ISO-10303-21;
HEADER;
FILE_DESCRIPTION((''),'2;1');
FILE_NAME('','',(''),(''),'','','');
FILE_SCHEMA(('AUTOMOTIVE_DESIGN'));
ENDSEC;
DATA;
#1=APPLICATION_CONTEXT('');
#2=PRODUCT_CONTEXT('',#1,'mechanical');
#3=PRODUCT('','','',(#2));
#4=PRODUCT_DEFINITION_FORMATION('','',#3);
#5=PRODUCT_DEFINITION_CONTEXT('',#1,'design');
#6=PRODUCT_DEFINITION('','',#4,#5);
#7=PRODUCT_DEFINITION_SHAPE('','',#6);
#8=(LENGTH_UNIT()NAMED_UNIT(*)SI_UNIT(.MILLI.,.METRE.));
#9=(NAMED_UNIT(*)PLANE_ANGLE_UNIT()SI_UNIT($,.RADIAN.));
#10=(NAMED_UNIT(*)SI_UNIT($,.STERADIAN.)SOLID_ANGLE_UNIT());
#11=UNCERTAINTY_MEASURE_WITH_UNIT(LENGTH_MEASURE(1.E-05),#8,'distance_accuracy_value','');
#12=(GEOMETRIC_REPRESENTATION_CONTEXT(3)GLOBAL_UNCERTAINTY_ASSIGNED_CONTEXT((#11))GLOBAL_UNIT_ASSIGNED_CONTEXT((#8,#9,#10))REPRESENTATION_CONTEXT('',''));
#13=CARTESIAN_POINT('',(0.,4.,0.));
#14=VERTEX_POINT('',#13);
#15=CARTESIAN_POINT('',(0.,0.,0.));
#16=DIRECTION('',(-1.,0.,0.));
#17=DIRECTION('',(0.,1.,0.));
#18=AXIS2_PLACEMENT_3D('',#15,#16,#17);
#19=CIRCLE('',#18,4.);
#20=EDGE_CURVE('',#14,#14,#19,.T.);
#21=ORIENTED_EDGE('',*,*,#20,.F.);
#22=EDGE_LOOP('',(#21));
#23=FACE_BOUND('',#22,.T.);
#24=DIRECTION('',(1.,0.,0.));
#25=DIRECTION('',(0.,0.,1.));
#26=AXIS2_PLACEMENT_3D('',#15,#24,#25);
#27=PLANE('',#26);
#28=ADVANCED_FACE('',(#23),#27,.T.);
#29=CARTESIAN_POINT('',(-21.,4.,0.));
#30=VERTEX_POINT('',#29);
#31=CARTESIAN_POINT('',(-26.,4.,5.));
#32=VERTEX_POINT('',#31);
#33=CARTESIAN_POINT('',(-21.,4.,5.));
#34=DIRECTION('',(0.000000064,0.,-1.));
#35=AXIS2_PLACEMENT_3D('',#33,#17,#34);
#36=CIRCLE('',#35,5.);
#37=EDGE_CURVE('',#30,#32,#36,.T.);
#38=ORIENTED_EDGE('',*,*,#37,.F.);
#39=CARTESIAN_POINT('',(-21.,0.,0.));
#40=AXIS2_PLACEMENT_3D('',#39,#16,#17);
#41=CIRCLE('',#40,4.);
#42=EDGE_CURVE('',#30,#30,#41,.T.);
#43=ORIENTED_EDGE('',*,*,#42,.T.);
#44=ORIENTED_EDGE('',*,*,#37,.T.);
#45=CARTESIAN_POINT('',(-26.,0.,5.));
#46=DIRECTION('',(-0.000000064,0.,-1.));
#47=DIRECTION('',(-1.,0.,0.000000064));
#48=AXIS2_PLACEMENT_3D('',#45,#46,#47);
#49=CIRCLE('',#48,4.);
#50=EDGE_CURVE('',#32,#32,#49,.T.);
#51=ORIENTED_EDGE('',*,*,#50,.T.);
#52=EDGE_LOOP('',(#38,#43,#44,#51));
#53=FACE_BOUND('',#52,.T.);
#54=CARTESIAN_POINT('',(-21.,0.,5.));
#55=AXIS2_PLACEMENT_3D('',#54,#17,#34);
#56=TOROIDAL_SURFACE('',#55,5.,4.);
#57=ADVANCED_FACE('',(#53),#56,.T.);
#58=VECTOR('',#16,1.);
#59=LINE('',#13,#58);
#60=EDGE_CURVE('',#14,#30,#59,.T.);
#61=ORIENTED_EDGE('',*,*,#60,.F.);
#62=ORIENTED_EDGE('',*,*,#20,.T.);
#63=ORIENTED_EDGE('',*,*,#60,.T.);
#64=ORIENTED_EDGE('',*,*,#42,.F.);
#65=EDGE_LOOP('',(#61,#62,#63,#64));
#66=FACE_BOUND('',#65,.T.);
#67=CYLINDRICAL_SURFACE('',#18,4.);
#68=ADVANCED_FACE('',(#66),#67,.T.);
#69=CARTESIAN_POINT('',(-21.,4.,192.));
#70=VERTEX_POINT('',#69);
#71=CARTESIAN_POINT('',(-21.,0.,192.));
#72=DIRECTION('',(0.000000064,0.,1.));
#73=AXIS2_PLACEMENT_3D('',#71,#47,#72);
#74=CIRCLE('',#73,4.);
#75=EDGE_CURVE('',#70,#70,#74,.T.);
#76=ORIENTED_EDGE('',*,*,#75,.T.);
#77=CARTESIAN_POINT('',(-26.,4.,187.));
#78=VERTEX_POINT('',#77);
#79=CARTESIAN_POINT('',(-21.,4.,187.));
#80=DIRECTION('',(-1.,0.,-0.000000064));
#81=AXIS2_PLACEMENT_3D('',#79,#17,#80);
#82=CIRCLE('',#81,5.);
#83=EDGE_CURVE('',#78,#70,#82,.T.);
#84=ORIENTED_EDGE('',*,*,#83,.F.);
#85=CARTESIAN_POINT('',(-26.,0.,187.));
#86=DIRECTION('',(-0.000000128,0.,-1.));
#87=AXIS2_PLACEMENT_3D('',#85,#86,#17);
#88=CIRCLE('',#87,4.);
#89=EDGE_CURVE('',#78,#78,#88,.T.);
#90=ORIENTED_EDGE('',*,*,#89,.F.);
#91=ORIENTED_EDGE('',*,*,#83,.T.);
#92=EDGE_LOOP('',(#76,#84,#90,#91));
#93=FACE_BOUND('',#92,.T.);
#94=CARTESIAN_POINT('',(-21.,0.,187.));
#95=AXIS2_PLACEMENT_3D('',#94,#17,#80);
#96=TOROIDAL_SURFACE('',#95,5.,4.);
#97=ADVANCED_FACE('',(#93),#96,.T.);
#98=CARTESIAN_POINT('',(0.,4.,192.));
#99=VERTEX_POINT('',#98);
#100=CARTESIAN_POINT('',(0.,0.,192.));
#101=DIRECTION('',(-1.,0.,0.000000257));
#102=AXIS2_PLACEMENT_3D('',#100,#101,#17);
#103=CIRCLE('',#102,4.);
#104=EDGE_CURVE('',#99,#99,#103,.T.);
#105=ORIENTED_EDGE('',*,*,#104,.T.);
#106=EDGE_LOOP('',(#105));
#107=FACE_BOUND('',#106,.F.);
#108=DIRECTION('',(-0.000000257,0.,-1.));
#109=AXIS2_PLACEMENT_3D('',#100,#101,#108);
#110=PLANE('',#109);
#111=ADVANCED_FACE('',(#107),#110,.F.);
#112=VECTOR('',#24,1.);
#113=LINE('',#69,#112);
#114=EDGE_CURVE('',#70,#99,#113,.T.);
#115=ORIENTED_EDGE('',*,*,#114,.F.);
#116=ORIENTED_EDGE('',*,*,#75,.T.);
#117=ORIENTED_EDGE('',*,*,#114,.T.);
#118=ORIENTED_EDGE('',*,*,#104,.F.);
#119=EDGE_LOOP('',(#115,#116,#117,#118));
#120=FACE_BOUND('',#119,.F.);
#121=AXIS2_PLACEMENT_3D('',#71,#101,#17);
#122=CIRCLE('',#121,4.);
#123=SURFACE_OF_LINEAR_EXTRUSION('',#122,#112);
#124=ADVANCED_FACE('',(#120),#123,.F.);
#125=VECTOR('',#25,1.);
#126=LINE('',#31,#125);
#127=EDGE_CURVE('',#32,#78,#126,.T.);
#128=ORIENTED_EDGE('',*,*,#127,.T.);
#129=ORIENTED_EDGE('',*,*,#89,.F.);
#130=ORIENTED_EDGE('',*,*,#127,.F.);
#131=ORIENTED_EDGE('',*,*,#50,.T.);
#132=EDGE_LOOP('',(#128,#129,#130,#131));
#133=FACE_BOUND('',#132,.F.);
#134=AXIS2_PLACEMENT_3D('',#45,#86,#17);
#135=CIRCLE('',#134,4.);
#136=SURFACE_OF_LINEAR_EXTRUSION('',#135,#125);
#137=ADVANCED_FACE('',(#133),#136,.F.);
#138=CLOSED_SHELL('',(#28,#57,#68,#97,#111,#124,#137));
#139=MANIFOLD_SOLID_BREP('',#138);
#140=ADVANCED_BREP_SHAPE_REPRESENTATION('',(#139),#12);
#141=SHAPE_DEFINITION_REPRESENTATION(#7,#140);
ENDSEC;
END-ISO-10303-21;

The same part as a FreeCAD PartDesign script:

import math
import FreeCAD as App
import Part
import Sketcher
Q = App.Units.Quantity

doc = App.newDocument("Part")
body = doc.addObject("PartDesign::Body", "Body")

# Sketch on YZ plane
sketch1 = body.newObject("Sketcher::SketchObject", "Sketch")
sketch1.AttachmentSupport = (doc.getObject("YZ_Plane"), [""])
sketch1.MapMode = "FlatFace"
sketch1.addGeometry(Part.Circle(App.Vector(0, 0, 0), App.Vector(0, 0, 1), 4), False)
sketch1.addConstraint(Sketcher.Constraint("Coincident", 0, 3, -1, 1))
sketch1.addConstraint(Sketcher.Constraint("Diameter", 0, Q("8 mm")))

# Sketch on XZ plane
sketch2 = body.newObject("Sketcher::SketchObject", "Sketch001")
sketch2.AttachmentSupport = (doc.getObject("XZ_Plane"), [""])
sketch2.MapMode = "FlatFace"
sketch2.addGeometry(Part.LineSegment(App.Vector(0, 0, 0), App.Vector(-21, 0, 0)), False)
sketch2.addGeometry(Part.ArcOfCircle(Part.Circle(App.Vector(-21, 5, 0), App.Vector(0, 0, 1), 5), math.radians(180), math.radians(270)), False)
sketch2.addGeometry(Part.LineSegment(App.Vector(-26, 5, 0), App.Vector(-26, 187, 0)), False)
sketch2.addGeometry(Part.ArcOfCircle(Part.Circle(App.Vector(-21, 187, 0), App.Vector(0, 0, 1), 5), math.radians(90), math.radians(180)), False)
sketch2.addGeometry(Part.LineSegment(App.Vector(-21, 192, 0), App.Vector(0, 192, 0)), False)
sketch2.addConstraint(Sketcher.Constraint("Tangent", 0, 2, 1, 2))
sketch2.addConstraint(Sketcher.Constraint("Tangent", 1, 1, 2, 1))
sketch2.addConstraint(Sketcher.Constraint("Tangent", 2, 2, 3, 2))
sketch2.addConstraint(Sketcher.Constraint("Tangent", 3, 1, 4, 1))
sketch2.addConstraint(Sketcher.Constraint("Horizontal", 0))
sketch2.addConstraint(Sketcher.Constraint("Vertical", 2))
sketch2.addConstraint(Sketcher.Constraint("Horizontal", 4))
sketch2.addConstraint(Sketcher.Constraint("Coincident", 0, 1, -1, 1))
sketch2.addConstraint(Sketcher.Constraint("Equal", 1, 3))
sketch2.addConstraint(Sketcher.Constraint("PointOnObject", 4, 2, -2))
sketch2.addConstraint(Sketcher.Constraint("Radius", 1, Q("5 mm")))
sketch2.addConstraint(Sketcher.Constraint("DistanceX", 0, 2, 0, 1, Q("21 mm")))
sketch2.addConstraint(Sketcher.Constraint("DistanceY", 2, 1, 2, 2, Q("182 mm")))
doc.recompute()

additivepipe = body.newObject("PartDesign::AdditivePipe", "AdditivePipe")
additivepipe.Profile = sketch1
additivepipe.Spine = (sketch2, ["Edge1", "Edge2", "Edge3", "Edge4", "Edge5"])

doc.recompute()
